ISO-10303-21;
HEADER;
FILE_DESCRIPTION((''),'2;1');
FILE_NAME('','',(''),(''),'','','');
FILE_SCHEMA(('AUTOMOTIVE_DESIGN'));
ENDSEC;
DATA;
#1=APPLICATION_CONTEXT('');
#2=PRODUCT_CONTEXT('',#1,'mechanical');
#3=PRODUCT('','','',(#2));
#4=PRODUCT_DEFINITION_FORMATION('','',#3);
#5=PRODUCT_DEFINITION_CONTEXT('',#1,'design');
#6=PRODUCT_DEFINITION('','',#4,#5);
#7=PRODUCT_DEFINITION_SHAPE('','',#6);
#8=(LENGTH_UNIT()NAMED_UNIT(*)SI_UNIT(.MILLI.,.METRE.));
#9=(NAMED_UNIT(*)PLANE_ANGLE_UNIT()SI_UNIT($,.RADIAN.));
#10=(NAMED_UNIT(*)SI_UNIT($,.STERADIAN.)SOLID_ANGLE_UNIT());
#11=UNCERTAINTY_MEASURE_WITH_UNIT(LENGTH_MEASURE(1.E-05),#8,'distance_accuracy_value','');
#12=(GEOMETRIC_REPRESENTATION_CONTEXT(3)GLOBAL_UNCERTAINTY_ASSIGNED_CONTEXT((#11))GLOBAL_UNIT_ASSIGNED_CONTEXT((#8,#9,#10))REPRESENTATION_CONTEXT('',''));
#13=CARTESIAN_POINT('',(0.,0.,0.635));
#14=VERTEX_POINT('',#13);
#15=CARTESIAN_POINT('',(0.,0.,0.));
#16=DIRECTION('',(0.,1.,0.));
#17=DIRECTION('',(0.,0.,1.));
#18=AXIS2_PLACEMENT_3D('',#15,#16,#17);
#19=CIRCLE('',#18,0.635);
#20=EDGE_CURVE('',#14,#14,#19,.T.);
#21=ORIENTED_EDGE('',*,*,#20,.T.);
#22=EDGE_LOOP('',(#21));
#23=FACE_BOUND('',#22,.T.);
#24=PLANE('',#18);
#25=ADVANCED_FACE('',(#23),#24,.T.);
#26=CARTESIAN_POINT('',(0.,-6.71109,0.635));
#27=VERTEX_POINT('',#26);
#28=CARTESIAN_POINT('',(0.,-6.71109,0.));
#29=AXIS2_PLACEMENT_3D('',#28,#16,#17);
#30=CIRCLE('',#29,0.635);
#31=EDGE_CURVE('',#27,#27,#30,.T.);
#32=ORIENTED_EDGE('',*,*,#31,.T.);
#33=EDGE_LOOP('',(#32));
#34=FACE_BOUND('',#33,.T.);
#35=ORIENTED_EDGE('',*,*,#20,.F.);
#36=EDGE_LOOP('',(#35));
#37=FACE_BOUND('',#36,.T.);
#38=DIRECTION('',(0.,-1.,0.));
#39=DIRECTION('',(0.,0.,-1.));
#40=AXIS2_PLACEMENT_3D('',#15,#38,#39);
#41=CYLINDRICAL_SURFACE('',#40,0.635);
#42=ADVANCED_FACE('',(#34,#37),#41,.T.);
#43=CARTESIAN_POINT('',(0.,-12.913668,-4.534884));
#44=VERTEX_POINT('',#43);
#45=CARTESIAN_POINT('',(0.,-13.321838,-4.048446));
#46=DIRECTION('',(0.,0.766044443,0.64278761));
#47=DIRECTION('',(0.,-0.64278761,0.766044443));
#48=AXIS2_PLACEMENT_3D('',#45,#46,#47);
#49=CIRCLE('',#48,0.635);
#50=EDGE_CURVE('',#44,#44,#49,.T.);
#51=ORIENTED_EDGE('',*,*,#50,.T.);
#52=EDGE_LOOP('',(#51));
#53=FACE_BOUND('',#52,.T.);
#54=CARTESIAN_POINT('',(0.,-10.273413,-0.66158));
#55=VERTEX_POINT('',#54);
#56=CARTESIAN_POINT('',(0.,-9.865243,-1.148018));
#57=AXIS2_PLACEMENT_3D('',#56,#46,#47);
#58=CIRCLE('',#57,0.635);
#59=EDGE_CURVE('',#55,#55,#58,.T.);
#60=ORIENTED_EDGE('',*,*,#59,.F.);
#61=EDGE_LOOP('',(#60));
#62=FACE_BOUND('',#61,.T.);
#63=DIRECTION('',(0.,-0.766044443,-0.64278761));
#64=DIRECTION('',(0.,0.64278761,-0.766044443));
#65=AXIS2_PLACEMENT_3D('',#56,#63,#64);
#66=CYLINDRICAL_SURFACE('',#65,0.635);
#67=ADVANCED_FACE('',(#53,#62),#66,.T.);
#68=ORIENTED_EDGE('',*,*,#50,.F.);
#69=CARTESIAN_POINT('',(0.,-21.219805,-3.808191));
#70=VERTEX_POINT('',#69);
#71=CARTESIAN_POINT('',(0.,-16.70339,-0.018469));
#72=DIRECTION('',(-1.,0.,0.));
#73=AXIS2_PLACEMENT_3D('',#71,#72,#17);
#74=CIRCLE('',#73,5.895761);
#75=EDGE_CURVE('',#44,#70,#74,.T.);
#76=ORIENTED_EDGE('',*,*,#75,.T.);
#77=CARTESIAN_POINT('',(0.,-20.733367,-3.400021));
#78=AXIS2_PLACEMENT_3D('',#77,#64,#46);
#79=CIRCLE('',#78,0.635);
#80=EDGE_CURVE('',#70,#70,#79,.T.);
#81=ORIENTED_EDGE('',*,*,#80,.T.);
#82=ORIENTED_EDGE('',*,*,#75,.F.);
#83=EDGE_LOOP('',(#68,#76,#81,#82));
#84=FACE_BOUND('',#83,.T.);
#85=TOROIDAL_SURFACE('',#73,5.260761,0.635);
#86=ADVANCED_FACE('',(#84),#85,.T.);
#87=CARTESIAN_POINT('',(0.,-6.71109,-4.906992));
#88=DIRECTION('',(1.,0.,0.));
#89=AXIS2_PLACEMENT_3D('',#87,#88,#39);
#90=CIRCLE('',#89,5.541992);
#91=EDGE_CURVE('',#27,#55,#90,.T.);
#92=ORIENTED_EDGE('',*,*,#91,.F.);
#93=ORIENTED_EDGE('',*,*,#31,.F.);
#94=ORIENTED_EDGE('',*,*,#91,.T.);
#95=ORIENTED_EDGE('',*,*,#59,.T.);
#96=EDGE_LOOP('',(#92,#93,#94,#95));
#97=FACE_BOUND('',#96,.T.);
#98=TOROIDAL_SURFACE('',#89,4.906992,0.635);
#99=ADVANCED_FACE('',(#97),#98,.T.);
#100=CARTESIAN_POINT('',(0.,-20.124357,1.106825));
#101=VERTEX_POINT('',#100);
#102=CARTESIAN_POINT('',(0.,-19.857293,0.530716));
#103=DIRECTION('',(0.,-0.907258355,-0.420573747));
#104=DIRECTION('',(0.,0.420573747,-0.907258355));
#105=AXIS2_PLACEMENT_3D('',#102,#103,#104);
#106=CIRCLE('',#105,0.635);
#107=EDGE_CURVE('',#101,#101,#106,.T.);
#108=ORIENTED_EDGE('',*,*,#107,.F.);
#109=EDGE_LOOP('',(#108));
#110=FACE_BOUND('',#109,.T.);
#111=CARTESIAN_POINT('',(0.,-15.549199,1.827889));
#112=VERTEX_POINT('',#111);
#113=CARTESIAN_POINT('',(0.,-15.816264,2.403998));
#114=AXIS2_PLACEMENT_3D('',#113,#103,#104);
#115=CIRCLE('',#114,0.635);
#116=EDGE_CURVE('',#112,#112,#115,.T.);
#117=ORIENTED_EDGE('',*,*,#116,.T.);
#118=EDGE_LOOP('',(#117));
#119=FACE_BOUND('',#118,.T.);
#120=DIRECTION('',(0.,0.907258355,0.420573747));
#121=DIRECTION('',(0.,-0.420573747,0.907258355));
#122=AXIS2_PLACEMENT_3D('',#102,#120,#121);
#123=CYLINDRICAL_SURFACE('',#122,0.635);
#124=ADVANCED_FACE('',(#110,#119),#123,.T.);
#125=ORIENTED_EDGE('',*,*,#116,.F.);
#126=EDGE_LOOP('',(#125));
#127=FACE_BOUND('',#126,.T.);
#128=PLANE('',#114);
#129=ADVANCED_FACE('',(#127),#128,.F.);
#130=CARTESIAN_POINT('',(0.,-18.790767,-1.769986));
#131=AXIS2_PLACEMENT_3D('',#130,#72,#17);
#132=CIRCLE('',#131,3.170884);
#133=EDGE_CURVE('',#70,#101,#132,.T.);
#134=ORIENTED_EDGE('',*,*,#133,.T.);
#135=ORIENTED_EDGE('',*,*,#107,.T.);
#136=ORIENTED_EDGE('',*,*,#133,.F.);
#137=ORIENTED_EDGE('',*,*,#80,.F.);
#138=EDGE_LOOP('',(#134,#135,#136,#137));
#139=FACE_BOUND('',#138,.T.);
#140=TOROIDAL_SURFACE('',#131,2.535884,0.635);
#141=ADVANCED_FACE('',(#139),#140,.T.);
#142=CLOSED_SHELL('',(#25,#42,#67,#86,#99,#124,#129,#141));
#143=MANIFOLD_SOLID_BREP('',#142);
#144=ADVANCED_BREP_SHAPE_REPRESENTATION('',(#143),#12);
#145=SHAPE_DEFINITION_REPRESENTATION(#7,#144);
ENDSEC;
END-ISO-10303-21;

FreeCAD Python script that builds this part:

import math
import FreeCAD as App
import Part
import Sketcher
Q = App.Units.Quantity

doc = App.newDocument("Part")
body = doc.addObject("PartDesign::Body", "Body")

# Sketch on XZ plane
sketch1 = body.newObject("Sketcher::SketchObject", "Sketch")
sketch1.AttachmentSupport = (doc.getObject("XZ_Plane"), [""])
sketch1.MapMode = "FlatFace"
sketch1.addGeometry(Part.Circle(App.Vector(0, 0, 0), App.Vector(0, 0, 1), 0.6), False)
sketch1.addConstraint(Sketcher.Constraint("Coincident", 0, 3, -1, 1))
sketch1.addConstraint(Sketcher.Constraint("Diameter", 0, Q("0.05 in")))

# Sketch on YZ plane
sketch2 = body.newObject("Sketcher::SketchObject", "Sketch001")
sketch2.AttachmentSupport = (doc.getObject("YZ_Plane"), [""])
sketch2.MapMode = "FlatFace"
sketch2.addGeometry(Part.LineSegment(App.Vector(-15.816264, 2.403998, 0), App.Vector(-19.857293, 0.530716, 0)), False)
sketch2.addGeometry(Part.ArcOfCircle(Part.Circle(App.Vector(-18.790767, -1.769986, 0), App.Vector(0, 0, 1), 2.535884), math.radians(114.870816), math.radians(220)), False)
sketch2.addGeometry(Part.ArcOfCircle(Part.Circle(App.Vector(-16.70339, -0.018469, 0), App.Vector(0, 0, 1), 5.260761), math.radians(-140), math.radians(-50)), False)
sketch2.addGeometry(Part.LineSegment(App.Vector(-13.321838, -4.048446, 0), App.Vector(-9.865243, -1.148018, 0)), False)
sketch2.addGeometry(Part.ArcOfCircle(Part.Circle(App.Vector(-6.71109, -4.906992, 0), App.Vector(0, 0, 1), 4.906992), math.radians(90), math.radians(130)), False)
sketch2.addGeometry(Part.BSplineCurve([App.Vector(-6.71109, 0, 0), App.Vector(0, 0, 0)], [2, 2], [0, 1], False, 1, [1, 1], False), False)
sketch2.addConstraint(Sketcher.Constraint("Block", 5))
sketch2.addConstraint(Sketcher.Constraint("Tangent", 0, 2, 1, 1))
sketch2.addConstraint(Sketcher.Constraint("Tangent", 1, 2, 2, 1))
sketch2.addConstraint(Sketcher.Constraint("Tangent", 2, 2, 3, 1))
sketch2.addConstraint(Sketcher.Constraint("Tangent", 3, 2, 4, 2))
sketch2.addConstraint(Sketcher.Constraint("Coincident", 4, 1, 5, 1))
sketch2.addConstraint(Sketcher.Constraint("Angle", 3, Q("40 deg")))
sketch2.addConstraint(Sketcher.Constraint("Radius", 2, Q("5.260761 mm")))
sketch2.addConstraint(Sketcher.Constraint("Radius", 4, Q("4.906992 mm")))
sketch2.addConstraint(Sketcher.Constraint("Radius", 1, Q("2.535884 mm")))
sketch2.addConstraint(Sketcher.Constraint("DistanceX", 2, 3, 4, 3, Q("9.9923 mm")))
sketch2.addConstraint(Sketcher.Constraint("DistanceY", 1, 3, 0, 2, Q("2.300702 mm")))
sketch2.addConstraint(Sketcher.Constraint("DistanceX", 1, 2, 1, 3, Q("1.9426 mm")))
sketch2.addConstraint(Sketcher.Constraint("DistanceX", 2, 3, 4, 1, Q("9.9923 mm")))
sketch2.addConstraint(Sketcher.Constraint("Distance", 0, Q("4.454111 mm")))
doc.recompute()

additivepipe = body.newObject("PartDesign::AdditivePipe", "AdditivePipe")
additivepipe.Profile = sketch1
additivepipe.Spine = (sketch2, ["Edge1", "Edge2", "Edge3", "Edge4", "Edge5", "Edge6"])

doc.recompute()
